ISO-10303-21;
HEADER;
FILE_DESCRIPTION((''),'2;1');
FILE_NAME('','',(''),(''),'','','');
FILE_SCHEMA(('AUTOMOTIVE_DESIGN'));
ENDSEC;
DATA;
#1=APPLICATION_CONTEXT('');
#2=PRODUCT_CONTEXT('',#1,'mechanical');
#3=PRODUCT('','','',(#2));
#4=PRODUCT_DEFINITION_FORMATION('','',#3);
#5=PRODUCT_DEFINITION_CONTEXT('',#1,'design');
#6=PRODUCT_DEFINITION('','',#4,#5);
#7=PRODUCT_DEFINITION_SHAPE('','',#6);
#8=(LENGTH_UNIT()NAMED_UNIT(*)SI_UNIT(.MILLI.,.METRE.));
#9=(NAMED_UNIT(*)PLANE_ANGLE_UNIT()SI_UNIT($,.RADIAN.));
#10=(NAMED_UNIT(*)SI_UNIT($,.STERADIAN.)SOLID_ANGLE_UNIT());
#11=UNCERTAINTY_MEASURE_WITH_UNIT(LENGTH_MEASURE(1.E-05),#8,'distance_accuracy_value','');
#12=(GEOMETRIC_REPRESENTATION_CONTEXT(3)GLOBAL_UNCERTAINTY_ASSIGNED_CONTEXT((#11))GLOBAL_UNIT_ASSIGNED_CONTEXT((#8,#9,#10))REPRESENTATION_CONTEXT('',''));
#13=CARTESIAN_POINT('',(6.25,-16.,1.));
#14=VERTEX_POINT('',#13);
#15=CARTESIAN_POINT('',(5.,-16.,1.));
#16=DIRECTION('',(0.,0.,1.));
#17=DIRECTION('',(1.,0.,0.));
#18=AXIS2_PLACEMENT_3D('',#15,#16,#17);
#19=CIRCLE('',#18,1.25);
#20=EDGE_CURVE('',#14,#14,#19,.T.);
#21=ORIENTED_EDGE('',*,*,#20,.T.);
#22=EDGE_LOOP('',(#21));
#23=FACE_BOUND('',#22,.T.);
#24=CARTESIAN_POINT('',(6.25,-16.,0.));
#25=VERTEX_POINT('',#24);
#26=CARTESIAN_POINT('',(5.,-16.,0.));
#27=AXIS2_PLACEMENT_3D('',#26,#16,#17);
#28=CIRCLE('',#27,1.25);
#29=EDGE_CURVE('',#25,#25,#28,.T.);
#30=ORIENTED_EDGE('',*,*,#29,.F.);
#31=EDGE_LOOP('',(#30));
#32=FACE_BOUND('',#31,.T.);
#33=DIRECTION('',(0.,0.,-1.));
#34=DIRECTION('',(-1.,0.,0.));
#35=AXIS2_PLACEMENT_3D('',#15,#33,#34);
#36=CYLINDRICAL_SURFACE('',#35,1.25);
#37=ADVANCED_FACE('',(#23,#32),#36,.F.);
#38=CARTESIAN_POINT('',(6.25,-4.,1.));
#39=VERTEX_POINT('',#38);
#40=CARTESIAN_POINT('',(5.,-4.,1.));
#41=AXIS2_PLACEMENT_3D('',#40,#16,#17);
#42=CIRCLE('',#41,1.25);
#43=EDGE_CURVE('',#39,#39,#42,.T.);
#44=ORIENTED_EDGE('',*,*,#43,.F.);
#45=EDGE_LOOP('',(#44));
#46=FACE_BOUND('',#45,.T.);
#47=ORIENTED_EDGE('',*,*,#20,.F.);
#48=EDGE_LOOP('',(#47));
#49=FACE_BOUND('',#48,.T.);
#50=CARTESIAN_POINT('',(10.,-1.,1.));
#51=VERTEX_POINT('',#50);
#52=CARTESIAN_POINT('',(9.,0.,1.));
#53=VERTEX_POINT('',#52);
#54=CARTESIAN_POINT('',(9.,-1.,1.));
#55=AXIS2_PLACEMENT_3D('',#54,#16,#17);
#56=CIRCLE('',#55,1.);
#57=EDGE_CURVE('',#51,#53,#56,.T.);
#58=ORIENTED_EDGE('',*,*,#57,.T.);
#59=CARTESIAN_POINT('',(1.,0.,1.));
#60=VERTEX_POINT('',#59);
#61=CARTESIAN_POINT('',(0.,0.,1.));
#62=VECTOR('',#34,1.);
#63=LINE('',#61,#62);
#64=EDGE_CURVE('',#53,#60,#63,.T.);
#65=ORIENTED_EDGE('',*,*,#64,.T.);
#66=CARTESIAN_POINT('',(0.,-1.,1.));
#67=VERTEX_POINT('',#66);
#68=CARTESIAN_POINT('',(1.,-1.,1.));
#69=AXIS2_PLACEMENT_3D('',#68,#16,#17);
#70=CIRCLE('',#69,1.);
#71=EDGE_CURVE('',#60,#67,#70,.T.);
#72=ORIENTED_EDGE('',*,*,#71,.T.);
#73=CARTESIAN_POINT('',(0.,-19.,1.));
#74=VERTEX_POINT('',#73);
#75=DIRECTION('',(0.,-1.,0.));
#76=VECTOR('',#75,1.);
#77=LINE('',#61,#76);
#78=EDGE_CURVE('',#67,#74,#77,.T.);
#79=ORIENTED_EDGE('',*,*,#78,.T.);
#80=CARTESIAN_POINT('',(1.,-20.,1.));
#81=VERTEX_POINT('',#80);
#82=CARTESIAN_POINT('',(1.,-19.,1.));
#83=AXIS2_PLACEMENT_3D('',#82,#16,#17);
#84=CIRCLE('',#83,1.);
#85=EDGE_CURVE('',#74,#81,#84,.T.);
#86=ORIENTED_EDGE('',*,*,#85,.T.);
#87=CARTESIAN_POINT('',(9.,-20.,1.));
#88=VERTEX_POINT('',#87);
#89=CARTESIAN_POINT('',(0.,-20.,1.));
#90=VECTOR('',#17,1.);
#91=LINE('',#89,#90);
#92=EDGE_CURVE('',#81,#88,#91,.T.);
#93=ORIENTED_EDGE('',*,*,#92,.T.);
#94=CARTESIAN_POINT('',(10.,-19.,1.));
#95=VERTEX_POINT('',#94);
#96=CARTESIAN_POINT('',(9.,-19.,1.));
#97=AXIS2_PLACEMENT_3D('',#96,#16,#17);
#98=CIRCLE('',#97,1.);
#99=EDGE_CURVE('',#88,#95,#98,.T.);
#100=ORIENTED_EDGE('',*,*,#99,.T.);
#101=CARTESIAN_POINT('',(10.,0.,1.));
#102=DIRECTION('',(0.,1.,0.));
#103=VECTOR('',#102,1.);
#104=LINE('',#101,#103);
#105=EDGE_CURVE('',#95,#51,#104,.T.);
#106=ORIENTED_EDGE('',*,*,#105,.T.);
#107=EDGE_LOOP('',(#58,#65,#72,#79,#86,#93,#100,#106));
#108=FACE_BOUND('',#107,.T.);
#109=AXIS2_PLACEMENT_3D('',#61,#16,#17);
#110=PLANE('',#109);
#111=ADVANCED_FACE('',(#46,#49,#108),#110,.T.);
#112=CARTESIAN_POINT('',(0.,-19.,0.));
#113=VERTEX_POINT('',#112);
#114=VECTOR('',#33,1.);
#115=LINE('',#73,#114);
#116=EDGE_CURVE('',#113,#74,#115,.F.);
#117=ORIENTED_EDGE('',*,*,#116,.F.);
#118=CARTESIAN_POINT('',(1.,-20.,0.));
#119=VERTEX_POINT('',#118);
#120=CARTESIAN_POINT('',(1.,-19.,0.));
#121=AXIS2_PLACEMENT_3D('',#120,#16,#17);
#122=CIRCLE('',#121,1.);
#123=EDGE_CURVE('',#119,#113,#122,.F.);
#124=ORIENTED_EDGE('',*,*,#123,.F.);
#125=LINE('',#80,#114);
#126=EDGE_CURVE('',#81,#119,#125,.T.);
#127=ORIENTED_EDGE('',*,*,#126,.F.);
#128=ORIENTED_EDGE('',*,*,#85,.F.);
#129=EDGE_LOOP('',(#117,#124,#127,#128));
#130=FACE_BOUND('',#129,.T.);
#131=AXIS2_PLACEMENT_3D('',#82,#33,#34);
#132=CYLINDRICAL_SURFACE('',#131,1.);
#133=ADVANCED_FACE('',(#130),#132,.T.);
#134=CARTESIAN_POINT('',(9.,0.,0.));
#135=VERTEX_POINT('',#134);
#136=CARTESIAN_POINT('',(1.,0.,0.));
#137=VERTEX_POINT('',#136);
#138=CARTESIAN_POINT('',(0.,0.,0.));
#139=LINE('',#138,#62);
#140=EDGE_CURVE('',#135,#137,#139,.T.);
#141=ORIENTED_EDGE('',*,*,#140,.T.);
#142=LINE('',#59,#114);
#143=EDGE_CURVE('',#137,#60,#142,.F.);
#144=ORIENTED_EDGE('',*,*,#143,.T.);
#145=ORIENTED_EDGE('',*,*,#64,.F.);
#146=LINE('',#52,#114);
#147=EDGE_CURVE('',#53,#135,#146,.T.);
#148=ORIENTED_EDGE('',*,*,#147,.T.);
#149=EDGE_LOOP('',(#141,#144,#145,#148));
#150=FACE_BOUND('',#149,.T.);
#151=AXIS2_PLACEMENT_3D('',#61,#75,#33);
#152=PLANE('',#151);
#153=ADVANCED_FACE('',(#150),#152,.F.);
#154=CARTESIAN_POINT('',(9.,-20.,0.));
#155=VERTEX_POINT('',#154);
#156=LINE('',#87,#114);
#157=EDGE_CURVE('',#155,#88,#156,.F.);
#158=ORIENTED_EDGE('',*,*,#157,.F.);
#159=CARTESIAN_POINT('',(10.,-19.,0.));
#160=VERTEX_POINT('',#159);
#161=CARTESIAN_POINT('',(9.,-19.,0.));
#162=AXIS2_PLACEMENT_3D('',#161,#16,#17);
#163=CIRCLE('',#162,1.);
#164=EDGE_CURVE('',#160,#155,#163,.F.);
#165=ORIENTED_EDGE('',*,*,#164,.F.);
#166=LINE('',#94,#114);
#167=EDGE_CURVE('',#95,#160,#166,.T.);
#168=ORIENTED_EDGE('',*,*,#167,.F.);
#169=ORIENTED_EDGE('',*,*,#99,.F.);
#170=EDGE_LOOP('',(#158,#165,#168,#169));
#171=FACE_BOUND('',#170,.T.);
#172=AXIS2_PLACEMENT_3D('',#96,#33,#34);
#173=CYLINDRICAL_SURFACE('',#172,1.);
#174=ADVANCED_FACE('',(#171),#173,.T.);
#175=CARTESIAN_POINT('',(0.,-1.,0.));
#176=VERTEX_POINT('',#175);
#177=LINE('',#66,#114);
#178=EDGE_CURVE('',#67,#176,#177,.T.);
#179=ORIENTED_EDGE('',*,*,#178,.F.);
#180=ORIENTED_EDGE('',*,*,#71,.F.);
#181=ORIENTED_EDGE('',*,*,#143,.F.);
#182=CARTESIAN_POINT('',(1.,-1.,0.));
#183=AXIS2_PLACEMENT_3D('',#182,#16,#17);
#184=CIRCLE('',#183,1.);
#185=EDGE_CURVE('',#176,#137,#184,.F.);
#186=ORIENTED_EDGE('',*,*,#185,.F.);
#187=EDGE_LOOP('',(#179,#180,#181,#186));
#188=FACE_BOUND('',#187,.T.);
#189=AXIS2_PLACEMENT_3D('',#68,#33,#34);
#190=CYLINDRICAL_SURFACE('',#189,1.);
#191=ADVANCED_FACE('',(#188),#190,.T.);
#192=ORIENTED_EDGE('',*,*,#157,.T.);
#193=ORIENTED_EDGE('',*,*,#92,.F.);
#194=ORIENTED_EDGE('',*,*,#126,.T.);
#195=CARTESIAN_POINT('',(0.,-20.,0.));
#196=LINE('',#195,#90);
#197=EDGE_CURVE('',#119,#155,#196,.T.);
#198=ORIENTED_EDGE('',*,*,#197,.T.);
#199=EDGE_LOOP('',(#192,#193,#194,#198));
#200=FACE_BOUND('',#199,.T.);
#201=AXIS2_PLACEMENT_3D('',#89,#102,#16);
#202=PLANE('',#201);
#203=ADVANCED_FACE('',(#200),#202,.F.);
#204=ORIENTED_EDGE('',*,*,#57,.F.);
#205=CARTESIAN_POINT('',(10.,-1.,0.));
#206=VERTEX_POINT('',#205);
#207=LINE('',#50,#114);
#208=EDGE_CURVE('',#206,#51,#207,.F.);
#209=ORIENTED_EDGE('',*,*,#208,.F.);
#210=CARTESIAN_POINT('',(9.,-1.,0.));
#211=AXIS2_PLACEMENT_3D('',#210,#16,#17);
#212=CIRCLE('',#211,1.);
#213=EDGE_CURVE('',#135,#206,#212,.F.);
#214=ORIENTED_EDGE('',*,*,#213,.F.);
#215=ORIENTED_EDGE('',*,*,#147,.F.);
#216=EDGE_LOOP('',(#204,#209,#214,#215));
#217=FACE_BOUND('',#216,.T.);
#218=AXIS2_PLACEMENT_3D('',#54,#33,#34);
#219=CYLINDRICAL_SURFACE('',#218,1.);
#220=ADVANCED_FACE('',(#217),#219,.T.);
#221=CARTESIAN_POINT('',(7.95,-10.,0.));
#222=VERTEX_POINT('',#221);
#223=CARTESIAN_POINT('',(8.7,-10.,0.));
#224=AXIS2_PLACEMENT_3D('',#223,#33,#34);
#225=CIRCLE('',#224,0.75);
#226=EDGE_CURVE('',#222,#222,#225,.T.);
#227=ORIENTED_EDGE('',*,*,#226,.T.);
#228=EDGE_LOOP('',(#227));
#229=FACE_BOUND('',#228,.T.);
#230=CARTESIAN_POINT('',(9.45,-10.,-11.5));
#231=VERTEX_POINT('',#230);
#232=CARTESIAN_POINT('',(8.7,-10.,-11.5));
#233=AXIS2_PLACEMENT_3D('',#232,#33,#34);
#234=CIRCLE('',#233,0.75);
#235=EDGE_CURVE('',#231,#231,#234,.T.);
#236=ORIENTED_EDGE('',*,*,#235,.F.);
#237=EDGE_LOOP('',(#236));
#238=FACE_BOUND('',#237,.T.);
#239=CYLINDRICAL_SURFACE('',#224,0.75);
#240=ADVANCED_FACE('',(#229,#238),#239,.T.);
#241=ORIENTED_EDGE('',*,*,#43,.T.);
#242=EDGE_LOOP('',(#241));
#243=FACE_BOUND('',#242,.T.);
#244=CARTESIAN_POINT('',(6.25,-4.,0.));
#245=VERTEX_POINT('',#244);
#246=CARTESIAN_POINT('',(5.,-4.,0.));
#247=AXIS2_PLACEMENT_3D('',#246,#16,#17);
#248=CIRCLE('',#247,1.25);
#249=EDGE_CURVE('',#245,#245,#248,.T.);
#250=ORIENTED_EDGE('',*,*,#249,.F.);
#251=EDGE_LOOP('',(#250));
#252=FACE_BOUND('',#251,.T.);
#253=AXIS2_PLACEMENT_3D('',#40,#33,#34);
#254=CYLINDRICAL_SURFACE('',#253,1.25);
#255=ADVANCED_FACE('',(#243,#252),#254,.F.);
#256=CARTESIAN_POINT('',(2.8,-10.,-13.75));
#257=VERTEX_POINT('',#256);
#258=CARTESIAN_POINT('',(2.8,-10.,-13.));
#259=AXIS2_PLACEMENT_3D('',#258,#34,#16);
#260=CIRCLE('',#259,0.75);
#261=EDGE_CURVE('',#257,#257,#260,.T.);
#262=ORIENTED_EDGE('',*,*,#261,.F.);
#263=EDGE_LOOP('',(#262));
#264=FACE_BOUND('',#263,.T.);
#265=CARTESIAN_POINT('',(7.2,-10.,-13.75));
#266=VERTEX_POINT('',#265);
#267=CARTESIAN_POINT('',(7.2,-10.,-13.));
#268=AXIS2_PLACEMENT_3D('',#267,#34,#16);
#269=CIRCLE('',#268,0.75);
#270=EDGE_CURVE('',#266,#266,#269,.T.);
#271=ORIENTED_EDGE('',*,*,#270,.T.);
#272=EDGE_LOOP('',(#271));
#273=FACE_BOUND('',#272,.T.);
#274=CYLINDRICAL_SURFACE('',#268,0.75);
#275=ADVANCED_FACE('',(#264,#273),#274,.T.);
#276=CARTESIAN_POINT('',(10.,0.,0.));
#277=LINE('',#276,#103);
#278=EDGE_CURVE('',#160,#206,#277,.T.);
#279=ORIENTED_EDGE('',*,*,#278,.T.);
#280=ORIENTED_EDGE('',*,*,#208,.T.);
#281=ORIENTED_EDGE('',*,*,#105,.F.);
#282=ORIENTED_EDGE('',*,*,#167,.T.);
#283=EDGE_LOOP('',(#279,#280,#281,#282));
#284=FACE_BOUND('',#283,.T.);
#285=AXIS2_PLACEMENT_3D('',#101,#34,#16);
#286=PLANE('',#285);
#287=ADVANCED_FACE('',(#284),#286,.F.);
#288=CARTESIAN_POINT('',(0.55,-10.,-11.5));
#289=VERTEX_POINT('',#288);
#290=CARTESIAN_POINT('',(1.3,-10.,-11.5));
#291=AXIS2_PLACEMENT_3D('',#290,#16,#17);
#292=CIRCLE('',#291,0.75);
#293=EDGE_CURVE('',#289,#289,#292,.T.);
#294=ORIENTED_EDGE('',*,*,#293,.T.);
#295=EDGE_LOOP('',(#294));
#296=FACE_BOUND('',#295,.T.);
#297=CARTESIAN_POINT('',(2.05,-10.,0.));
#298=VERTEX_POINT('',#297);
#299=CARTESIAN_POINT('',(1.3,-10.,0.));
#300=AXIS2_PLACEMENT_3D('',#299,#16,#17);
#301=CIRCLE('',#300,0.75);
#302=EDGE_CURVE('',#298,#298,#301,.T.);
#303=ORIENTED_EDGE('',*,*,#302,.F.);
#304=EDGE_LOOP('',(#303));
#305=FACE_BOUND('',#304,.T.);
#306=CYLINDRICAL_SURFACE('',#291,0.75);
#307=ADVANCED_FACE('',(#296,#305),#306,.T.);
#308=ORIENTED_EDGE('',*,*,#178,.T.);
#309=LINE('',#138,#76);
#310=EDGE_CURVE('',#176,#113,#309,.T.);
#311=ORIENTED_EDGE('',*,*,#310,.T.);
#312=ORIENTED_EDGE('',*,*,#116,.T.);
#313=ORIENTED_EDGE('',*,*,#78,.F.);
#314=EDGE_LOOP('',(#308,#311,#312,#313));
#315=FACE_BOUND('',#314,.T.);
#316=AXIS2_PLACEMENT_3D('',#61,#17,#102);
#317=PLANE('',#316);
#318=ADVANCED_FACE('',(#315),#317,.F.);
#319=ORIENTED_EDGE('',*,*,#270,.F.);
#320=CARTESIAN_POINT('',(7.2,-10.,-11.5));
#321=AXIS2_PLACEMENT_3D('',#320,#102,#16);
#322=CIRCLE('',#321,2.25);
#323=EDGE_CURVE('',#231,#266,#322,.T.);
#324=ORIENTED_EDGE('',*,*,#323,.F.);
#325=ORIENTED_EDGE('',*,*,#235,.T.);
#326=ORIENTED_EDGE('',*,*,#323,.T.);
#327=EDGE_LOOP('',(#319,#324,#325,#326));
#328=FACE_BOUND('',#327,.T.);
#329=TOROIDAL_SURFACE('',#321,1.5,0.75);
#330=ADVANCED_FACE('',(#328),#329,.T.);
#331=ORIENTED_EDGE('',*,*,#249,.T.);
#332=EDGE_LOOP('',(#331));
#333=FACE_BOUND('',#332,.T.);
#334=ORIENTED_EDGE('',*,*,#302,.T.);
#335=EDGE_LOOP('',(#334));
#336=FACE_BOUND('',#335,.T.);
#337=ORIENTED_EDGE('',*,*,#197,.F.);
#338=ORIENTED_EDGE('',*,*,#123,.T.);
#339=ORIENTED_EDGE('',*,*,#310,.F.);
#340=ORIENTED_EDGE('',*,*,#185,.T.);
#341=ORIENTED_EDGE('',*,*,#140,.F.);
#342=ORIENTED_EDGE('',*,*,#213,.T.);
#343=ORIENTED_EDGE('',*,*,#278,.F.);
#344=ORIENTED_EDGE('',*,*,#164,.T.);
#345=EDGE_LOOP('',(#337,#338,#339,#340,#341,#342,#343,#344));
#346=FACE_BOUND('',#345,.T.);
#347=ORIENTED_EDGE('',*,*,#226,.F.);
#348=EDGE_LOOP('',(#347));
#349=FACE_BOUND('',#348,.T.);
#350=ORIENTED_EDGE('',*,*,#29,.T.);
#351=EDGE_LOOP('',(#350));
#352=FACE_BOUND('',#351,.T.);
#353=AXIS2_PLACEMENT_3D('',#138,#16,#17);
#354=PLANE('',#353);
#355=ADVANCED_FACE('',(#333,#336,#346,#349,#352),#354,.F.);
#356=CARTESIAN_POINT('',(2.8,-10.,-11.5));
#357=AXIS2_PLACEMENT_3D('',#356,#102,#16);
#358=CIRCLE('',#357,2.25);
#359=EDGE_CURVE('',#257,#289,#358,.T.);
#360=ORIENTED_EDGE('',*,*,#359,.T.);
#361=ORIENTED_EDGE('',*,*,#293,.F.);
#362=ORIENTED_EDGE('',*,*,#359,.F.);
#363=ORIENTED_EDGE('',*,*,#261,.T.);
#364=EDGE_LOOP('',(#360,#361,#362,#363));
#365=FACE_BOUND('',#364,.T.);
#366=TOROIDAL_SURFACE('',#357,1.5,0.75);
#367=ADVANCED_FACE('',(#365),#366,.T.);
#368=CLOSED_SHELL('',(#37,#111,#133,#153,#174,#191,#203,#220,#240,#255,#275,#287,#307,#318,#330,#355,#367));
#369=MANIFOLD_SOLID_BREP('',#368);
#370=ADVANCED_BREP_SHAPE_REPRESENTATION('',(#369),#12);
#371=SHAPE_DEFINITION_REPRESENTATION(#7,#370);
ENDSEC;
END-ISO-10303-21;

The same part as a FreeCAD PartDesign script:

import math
import FreeCAD as App
import Part
import Sketcher


def edges_at(feature, points):
    """Names of the edges that pass closest to the given points."""
    edges = feature.Shape.Edges
    near = lambda p: min(range(len(edges)), key=lambda i: edges[i].distToShape(Part.Vertex(*p))[0])
    return sorted({f"Edge{near(p) + 1}" for p in points})


def add_polygon(sketch, points):
    """Adds a closed chain of lines whose ends are joined by coincident constraints."""
    first, n = sketch.GeometryCount, len(points)
    for a, b in zip(points, points[1:] + points[:1]):
        sketch.addGeometry(Part.LineSegment(App.Vector(*a, 0), App.Vector(*b, 0)), False)
    for i in range(n):
        sketch.addConstraint(Sketcher.Constraint("Coincident", first + i, 2, first + (i + 1) % n, 1))

doc = App.newDocument("Part")
body = doc.addObject("PartDesign::Body", "Body")

sketch1 = body.newObject("Sketcher::SketchObject", "Sketch")
sketch1.AttachmentSupport = (doc.getObject("XY_Plane"), [""])
sketch1.MapMode = "FlatFace"
add_polygon(sketch1, [(0, 0), (0, -20), (10, -20), (10, 0)])
sketch1.addGeometry(Part.Circle(App.Vector(5, -16, 0), App.Vector(0, 0, 1), 1.2), False)
sketch1.addGeometry(Part.Circle(App.Vector(5, -4, 0), App.Vector(0, 0, 1), 1.2), False)
sketch1.addConstraint([
    Sketcher.Constraint("Vertical", 0),
    Sketcher.Constraint("Horizontal", 1),
    Sketcher.Constraint("Vertical", 2),
    Sketcher.Constraint("Horizontal", 3),
    Sketcher.Constraint("Coincident", 3, 2, -1, 1),
    Sketcher.Constraint("Equal", 4, 5),
    Sketcher.Constraint("Vertical", 4, 3, 5, 3),
    Sketcher.Constraint("Diameter", 4, 2.5),
    Sketcher.Constraint("DistanceX", 1, 1, 1, 2, 10.0),
    Sketcher.Constraint("DistanceY", 0, 2, 0, 1, 20.0),
    Sketcher.Constraint("DistanceX", -1, 1, 4, 3, 5.0),
    Sketcher.Constraint("DistanceY", 4, 3, -1, 1, 16.0),
    Sketcher.Constraint("DistanceY", 5, 3, -1, 1, 4.0),
])
pad1 = body.newObject("PartDesign::Pad", "Pad")
pad1.Profile = sketch1
pad1.Length = 1
doc.recompute()

fillet = body.newObject("PartDesign::Fillet", "Fillet")
fillet.Base = (pad1, edges_at(pad1, [
    (0, 0, 0.5),
    (10, 0, 0.5),
    (10, -20, 0.5),
    (0, -20, 0.5),
]))
fillet.Radius = 1

sketch2 = body.newObject("Sketcher::SketchObject", "Sketch001")
sketch2.AttachmentSupport = (doc.getObject("XY_Plane"), [""])
sketch2.MapMode = "FlatFace"
sketch2.addGeometry(Part.Circle(App.Vector(8.7, -10, 0), App.Vector(0, 0, 1), 0.8), False)
sketch2.addConstraint([
    Sketcher.Constraint("Diameter", 0, 1.5),
    Sketcher.Constraint("DistanceY", 0, 3, -1, 1, 10.0),
    Sketcher.Constraint("DistanceX", -1, 1, 0, 3, 8.7),
])

sketch3 = body.newObject("Sketcher::SketchObject", "Sketch002")
sketch3.AttachmentSupport = (doc.getObject("XZ_Plane"), [""])
sketch3.MapMode = "FlatFace"
sketch3.AttachmentOffset = App.Placement(App.Vector(0, 0, 10), App.Rotation())
sketch3.addGeometry([
    Part.LineSegment(App.Vector(1.3, 0, 0), App.Vector(1.3, -11.5, 0)),
    Part.ArcOfCircle(Part.Circle(App.Vector(2.8, -11.5, 0), App.Vector(0, 0, 1), 1.5), math.radians(180), math.radians(270)),
    Part.LineSegment(App.Vector(2.8, -13, 0), App.Vector(7.2, -13, 0)),
    Part.ArcOfCircle(Part.Circle(App.Vector(7.2, -11.5, 0), App.Vector(0, 0, 1), 1.5), math.radians(-90), math.radians(0)),
    Part.LineSegment(App.Vector(8.7, -11.5, 0), App.Vector(8.7, 0, 0)),
], False)
sketch3.addConstraint([
    Sketcher.Constraint("Tangent", 0, 2, 1, 1),
    Sketcher.Constraint("Tangent", 1, 2, 2, 1),
    Sketcher.Constraint("Tangent", 2, 2, 3, 1),
    Sketcher.Constraint("Tangent", 3, 2, 4, 1),
    Sketcher.Constraint("Vertical", 0),
    Sketcher.Constraint("Horizontal", 2),
    Sketcher.Constraint("Vertical", 4),
    Sketcher.Constraint("Equal", 1, 3),
    Sketcher.Constraint("PointOnObject", 0, 1, -1),
    Sketcher.Constraint("PointOnObject", 4, 2, -1),
    Sketcher.Constraint("Radius", 1, 1.5),
    Sketcher.Constraint("DistanceX", 2, 1, 2, 2, 4.4),
    Sketcher.Constraint("DistanceY", 0, 2, 0, 1, 11.5),
    Sketcher.Constraint("DistanceX", -1, 1, 1, 3, 2.8),
])
doc.recompute()

additivepipe = body.newObject("PartDesign::AdditivePipe", "AdditivePipe")
additivepipe.Profile = sketch2
additivepipe.Spine = (sketch3, ["Edge1", "Edge2", "Edge3", "Edge4", "Edge5"])

doc.recompute()
